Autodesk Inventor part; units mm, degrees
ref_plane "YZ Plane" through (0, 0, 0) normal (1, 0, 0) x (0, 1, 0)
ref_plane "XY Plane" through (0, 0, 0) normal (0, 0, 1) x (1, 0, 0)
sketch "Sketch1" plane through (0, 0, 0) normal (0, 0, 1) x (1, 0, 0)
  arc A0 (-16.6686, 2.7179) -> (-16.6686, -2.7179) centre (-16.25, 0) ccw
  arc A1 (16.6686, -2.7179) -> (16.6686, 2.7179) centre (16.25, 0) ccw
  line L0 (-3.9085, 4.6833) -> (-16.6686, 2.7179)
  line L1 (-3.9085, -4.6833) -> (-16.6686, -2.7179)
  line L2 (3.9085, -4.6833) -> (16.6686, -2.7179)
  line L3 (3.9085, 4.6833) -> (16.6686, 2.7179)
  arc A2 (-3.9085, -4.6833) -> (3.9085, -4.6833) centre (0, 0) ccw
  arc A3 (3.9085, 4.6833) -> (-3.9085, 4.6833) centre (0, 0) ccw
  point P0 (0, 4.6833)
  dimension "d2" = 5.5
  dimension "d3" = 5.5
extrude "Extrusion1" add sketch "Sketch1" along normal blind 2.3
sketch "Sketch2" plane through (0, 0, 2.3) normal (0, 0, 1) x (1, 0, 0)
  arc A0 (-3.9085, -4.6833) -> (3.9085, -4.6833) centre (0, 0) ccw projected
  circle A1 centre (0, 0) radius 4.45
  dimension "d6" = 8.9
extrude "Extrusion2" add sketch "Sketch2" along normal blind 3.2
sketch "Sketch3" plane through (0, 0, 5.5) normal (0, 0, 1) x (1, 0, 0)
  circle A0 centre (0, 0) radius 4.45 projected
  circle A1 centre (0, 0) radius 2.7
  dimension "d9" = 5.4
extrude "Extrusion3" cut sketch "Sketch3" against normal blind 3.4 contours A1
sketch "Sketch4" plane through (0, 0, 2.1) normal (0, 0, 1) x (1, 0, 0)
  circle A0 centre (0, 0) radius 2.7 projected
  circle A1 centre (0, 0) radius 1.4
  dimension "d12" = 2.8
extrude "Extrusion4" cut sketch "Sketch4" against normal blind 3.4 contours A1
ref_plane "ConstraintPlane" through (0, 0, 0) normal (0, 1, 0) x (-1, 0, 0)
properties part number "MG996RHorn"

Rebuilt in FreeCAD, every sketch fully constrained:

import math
import FreeCAD as App
import Part
import Sketcher
from FreeCAD import Vector

doc = App.newDocument("Part")
body = doc.addObject("PartDesign::Body", "Body")

sketch1 = body.newObject("Sketcher::SketchObject", "Sketch")
sketch1.AttachmentSupport = (doc.getObject("XY_Plane"), [""])
sketch1.MapMode = "FlatFace"
sketch1.addGeometry([
    Part.LineSegment(Vector(-3.9, 4.7, 0), Vector(-16.7, 2.7, 0)),
    Part.ArcOfCircle(Part.Circle(Vector(-16.2, 0, 0), Vector(0, 0, 1), 2.7), math.radians(99), math.radians(261)),
    Part.LineSegment(Vector(-16.7, -2.7, 0), Vector(-3.9, -4.7, 0)),
    Part.ArcOfCircle(Part.Circle(Vector(0, 0, 0), Vector(0, 0, 1), 6.1), math.radians(-130), math.radians(-50)),
    Part.LineSegment(Vector(3.9, -4.7, 0), Vector(16.7, -2.7, 0)),
    Part.ArcOfCircle(Part.Circle(Vector(16.2, 0, 0), Vector(0, 0, 1), 2.7), math.radians(-81), math.radians(81)),
    Part.LineSegment(Vector(16.7, 2.7, 0), Vector(3.9, 4.7, 0)),
    Part.ArcOfCircle(Part.Circle(Vector(0, 0, 0), Vector(0, 0, 1), 6.1), math.radians(50), math.radians(130)),
], False)
sketch1.addConstraint([
    Sketcher.Constraint("Tangent", 0, 2, 1, 1),
    Sketcher.Constraint("Tangent", 1, 2, 2, 1),
    Sketcher.Constraint("Coincident", 2, 2, 3, 1),
    Sketcher.Constraint("Coincident", 3, 2, 4, 1),
    Sketcher.Constraint("Tangent", 4, 2, 5, 1),
    Sketcher.Constraint("Tangent", 5, 2, 6, 1),
    Sketcher.Constraint("Coincident", 6, 2, 7, 1),
    Sketcher.Constraint("Coincident", 7, 2, 0, 1),
    Sketcher.Constraint("Coincident", 3, 3, -1, 1),
    Sketcher.Constraint("Coincident", 7, 3, -1, 1),
    Sketcher.Constraint("Equal", 1, 5),
    Sketcher.Constraint("Equal", 3, 7),
    Sketcher.Constraint("Symmetric", 1, 3, 5, 3, -1, 1),
    Sketcher.Constraint("Symmetric", 1, 2, 4, 2, -2),
    Sketcher.Constraint("Parallel", 0, 4),
    Sketcher.Constraint("Parallel", 2, 6),
    Sketcher.Constraint("Radius", 1, 2.75),
    Sketcher.Constraint("Radius", 3, 6.1),
    Sketcher.Constraint("DistanceX", 1, 3, 5, 3, 32.5),
    Sketcher.Constraint("DistanceX", 1, 2, 2, 2, 12.76),
])
pad1 = body.newObject("PartDesign::Pad", "Pad")
pad1.Profile = sketch1
pad1.Length = 2.3

sketch2 = body.newObject("Sketcher::SketchObject", "Sketch001")
sketch2.AttachmentSupport = (doc.getObject("XY_Plane"), [""])
sketch2.MapMode = "FlatFace"
sketch2.AttachmentOffset = App.Placement(Vector(0, 0, 2.3), App.Rotation())
sketch2.addGeometry(Part.Circle(Vector(0, 0, 0), Vector(0, 0, 1), 4.5), False)
sketch2.addConstraint([
    Sketcher.Constraint("Coincident", 0, 3, -1, 1),
    Sketcher.Constraint("Diameter", 0, 8.9),
])
pad2 = body.newObject("PartDesign::Pad", "Pad001")
pad2.Profile = sketch2
pad2.Length = 3.2

sketch3 = body.newObject("Sketcher::SketchObject", "Sketch002")
sketch3.AttachmentSupport = (doc.getObject("XY_Plane"), [""])
sketch3.MapMode = "FlatFace"
sketch3.AttachmentOffset = App.Placement(Vector(0, 0, 5.5), App.Rotation())
sketch3.addGeometry(Part.Circle(Vector(0, 0, 0), Vector(0, 0, 1), 2.7), False)
sketch3.addConstraint([
    Sketcher.Constraint("Coincident", 0, 3, -1, 1),
    Sketcher.Constraint("Diameter", 0, 5.4),
])
pocket1 = body.newObject("PartDesign::Pocket", "Pocket")
pocket1.Profile = sketch3
pocket1.Length = 3.4

sketch4 = body.newObject("Sketcher::SketchObject", "Sketch003")
sketch4.AttachmentSupport = (doc.getObject("XY_Plane"), [""])
sketch4.MapMode = "FlatFace"
sketch4.AttachmentOffset = App.Placement(Vector(0, 0, 2.1), App.Rotation())
sketch4.addGeometry(Part.Circle(Vector(0, 0, 0), Vector(0, 0, 1), 1.4), False)
sketch4.addConstraint([
    Sketcher.Constraint("Coincident", 0, 3, -1, 1),
    Sketcher.Constraint("Diameter", 0, 2.8),
])
pocket2 = body.newObject("PartDesign::Pocket", "Pocket001")
pocket2.Profile = sketch4
pocket2.Length = 3.4

doc.recompute()
